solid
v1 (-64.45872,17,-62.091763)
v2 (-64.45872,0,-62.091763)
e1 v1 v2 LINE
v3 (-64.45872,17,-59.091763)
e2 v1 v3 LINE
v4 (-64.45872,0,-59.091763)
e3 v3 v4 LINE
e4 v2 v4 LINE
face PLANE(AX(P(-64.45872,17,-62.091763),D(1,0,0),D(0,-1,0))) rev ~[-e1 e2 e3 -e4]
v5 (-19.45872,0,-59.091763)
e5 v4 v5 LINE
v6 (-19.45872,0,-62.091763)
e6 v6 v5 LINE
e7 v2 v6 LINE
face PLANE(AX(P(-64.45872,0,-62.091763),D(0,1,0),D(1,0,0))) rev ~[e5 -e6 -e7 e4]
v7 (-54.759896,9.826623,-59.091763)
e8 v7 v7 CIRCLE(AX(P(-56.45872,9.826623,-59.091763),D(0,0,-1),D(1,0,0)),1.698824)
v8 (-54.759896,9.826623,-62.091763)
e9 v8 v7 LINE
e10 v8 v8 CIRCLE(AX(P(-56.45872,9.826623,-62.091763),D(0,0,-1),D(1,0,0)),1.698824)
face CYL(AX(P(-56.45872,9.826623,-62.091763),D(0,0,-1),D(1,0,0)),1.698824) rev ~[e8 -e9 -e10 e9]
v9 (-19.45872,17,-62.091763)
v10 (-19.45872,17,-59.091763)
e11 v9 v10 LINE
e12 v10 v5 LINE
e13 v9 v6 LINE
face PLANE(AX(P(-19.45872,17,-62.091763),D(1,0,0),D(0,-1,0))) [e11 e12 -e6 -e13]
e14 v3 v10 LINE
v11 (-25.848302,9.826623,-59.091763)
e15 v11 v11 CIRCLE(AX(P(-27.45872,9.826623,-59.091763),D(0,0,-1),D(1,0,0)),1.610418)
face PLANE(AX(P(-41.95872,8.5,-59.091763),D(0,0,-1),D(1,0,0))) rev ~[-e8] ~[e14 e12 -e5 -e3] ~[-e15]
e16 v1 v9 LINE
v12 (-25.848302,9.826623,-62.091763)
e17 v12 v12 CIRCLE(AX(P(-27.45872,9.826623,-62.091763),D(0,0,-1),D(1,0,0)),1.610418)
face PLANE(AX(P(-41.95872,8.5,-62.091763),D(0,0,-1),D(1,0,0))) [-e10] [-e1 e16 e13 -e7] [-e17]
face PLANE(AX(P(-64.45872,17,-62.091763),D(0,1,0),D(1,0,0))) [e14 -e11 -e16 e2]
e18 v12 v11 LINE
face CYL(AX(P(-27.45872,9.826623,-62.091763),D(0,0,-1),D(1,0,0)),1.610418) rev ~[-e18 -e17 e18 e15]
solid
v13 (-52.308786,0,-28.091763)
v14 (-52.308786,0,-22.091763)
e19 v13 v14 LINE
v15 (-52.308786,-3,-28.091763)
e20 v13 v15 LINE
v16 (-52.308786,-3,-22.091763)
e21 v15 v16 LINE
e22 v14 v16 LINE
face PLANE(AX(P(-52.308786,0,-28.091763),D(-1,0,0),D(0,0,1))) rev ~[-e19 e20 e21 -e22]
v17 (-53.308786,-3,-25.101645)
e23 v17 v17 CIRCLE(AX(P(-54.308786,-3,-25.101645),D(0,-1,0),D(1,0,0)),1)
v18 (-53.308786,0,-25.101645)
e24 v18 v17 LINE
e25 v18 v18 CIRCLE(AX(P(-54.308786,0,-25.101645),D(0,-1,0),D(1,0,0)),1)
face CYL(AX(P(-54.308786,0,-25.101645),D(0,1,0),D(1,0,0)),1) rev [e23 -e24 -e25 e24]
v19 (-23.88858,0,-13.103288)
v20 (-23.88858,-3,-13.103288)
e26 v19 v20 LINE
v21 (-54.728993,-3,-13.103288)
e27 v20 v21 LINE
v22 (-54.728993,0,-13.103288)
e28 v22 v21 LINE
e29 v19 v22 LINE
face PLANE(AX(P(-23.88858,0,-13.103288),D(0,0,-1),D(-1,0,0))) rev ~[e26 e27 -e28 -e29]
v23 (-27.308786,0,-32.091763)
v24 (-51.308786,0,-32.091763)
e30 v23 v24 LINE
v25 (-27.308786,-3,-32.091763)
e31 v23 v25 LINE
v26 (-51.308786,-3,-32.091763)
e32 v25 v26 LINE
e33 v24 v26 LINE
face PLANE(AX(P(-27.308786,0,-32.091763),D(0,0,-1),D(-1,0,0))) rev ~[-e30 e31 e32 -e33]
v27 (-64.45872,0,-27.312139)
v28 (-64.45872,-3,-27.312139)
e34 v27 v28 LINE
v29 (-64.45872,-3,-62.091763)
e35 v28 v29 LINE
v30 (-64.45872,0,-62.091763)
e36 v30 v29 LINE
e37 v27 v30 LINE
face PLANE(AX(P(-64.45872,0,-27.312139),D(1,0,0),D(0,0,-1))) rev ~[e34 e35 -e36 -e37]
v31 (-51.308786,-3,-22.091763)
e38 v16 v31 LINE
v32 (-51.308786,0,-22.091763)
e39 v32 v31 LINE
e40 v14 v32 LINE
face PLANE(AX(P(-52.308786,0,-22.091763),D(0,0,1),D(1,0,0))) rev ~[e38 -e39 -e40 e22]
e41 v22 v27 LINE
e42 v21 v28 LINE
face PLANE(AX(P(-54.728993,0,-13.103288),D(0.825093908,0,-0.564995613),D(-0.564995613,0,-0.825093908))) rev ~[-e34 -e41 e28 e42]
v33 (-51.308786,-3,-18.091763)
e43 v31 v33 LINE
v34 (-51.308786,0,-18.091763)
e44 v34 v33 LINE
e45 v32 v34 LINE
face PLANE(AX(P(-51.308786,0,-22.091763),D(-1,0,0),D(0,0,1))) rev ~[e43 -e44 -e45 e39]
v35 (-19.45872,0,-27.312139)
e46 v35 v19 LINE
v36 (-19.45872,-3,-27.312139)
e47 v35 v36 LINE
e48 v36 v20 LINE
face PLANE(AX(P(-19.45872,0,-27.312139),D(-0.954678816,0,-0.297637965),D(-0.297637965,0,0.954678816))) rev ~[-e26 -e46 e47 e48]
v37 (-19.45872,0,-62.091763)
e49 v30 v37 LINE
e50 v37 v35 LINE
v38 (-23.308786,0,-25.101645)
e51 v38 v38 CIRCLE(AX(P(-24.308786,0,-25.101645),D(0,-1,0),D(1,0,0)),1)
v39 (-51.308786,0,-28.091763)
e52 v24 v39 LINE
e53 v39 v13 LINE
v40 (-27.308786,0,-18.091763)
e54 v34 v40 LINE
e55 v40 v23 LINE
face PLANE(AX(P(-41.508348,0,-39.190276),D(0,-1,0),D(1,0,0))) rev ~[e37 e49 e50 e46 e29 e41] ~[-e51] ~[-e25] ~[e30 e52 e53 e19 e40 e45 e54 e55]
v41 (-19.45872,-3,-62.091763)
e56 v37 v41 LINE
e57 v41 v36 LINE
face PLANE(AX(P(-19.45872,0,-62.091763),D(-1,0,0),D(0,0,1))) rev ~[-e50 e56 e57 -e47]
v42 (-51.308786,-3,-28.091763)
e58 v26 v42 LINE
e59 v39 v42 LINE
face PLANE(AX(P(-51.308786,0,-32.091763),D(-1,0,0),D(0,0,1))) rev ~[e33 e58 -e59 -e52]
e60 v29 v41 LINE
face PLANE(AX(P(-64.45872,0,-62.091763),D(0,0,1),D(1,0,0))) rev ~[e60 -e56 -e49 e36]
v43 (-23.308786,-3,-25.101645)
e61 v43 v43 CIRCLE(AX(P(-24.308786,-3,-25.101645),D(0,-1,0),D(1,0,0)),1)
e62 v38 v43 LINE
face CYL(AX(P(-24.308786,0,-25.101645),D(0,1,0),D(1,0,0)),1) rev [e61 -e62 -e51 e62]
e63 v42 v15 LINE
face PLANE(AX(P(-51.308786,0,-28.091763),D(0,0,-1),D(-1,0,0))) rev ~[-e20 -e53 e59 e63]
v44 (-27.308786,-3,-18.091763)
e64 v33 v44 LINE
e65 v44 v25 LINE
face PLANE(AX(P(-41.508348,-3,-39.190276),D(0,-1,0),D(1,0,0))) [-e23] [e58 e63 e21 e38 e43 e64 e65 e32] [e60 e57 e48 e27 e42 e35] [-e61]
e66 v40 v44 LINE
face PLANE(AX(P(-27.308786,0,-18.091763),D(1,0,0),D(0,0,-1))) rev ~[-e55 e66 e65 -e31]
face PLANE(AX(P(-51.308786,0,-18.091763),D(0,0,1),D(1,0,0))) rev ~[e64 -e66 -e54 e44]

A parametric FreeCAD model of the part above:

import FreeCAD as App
import Part
import Sketcher
from FreeCAD import Vector

doc = App.newDocument("Part")
body = doc.addObject("PartDesign::Body", "Body")

sketch1 = doc.addObject("Sketcher::SketchObject", "Sketch")
body.addObject(sketch1)
sketch1.AttachmentSupport = (doc.XZ_Plane, [""])
sketch1.MapMode = "FlatFace"
sketch1.addGeometry([
    Part.LineSegment(Vector(-64.5, -27.3, 0), Vector(-64.5, -62.1, 0)),
    Part.LineSegment(Vector(-64.5, -62.1, 0), Vector(-19.5, -62.1, 0)),
    Part.LineSegment(Vector(-19.5, -62.1, 0), Vector(-19.5, -27.3, 0)),
    Part.LineSegment(Vector(-19.5, -27.3, 0), Vector(-23.9, -13.1, 0)),
    Part.LineSegment(Vector(-23.9, -13.1, 0), Vector(-54.7, -13.1, 0)),
    Part.LineSegment(Vector(-54.7, -13.1, 0), Vector(-64.5, -27.3, 0)),
    Part.Circle(Vector(-54.3, -25.1, 0), Vector(0, 0, 1), 1),
    Part.Circle(Vector(-24.3, -25.1, 0), Vector(0, 0, 1), 1),
    Part.LineSegment(Vector(-52.3, -22.1, 0), Vector(-51.3, -22.1, 0)),
    Part.LineSegment(Vector(-51.3, -22.1, 0), Vector(-51.3, -18.1, 0)),
    Part.LineSegment(Vector(-51.3, -18.1, 0), Vector(-27.3, -18.1, 0)),
    Part.LineSegment(Vector(-27.3, -18.1, 0), Vector(-27.3, -32.1, 0)),
    Part.LineSegment(Vector(-27.3, -32.1, 0), Vector(-51.3, -32.1, 0)),
    Part.LineSegment(Vector(-51.3, -32.1, 0), Vector(-51.3, -28.1, 0)),
    Part.LineSegment(Vector(-51.3, -28.1, 0), Vector(-52.3, -28.1, 0)),
    Part.LineSegment(Vector(-52.3, -28.1, 0), Vector(-52.3, -22.1, 0)),
], False)
sketch1.addConstraint([
    Sketcher.Constraint("Coincident", 0, 2, 1, 1),
    Sketcher.Constraint("Coincident", 1, 2, 2, 1),
    Sketcher.Constraint("Coincident", 2, 2, 3, 1),
    Sketcher.Constraint("Coincident", 3, 2, 4, 1),
    Sketcher.Constraint("Coincident", 4, 2, 5, 1),
    Sketcher.Constraint("Coincident", 5, 2, 0, 1),
    Sketcher.Constraint("Coincident", 8, 2, 9, 1),
    Sketcher.Constraint("Coincident", 9, 2, 10, 1),
    Sketcher.Constraint("Coincident", 10, 2, 11, 1),
    Sketcher.Constraint("Coincident", 11, 2, 12, 1),
    Sketcher.Constraint("Coincident", 12, 2, 13, 1),
    Sketcher.Constraint("Coincident", 13, 2, 14, 1),
    Sketcher.Constraint("Coincident", 14, 2, 15, 1),
    Sketcher.Constraint("Coincident", 15, 2, 8, 1),
    Sketcher.Constraint("Vertical", 0),
    Sketcher.Constraint("Horizontal", 1),
    Sketcher.Constraint("Vertical", 2),
    Sketcher.Constraint("Horizontal", 4),
    Sketcher.Constraint("Horizontal", 8),
    Sketcher.Constraint("Vertical", 9),
    Sketcher.Constraint("Horizontal", 10),
    Sketcher.Constraint("Vertical", 11),
    Sketcher.Constraint("Horizontal", 12),
    Sketcher.Constraint("Vertical", 13),
    Sketcher.Constraint("Horizontal", 14),
    Sketcher.Constraint("Vertical", 15),
    Sketcher.Constraint("Equal", 6, 7),
    Sketcher.Constraint("Horizontal", 6, 3, 7, 3),
    Sketcher.Constraint("Horizontal", 2, 2, 5, 2),
    Sketcher.Constraint("Vertical", 9, 2, 12, 2),
    Sketcher.Constraint("Equal", 9, 13),
    Sketcher.Constraint("Diameter", 6, 2.0),
    Sketcher.Constraint("DistanceX", 1, 1, 1, 2, 45.0),
    Sketcher.Constraint("DistanceX", 8, 1, 8, 2, 1.0),
    Sketcher.Constraint("DistanceX", 10, 1, 10, 2, 24.0),
    Sketcher.Constraint("DistanceY", 9, 1, 9, 2, 4.0),
    Sketcher.Constraint("DistanceY", 11, 2, 11, 1, 14.0),
    Sketcher.Constraint("DistanceX", 6, 3, 7, 3, 30.0),
    Sketcher.Constraint("DistanceX", 6, 3, 8, 2, 3.0),
    Sketcher.Constraint("Distance", 5, 17.220889),
    Sketcher.Constraint("DistanceX", 4, 2, 4, 1, 30.840413),
    Sketcher.Constraint("DistanceY", 0, 2, 0, 1, 34.779624),
    Sketcher.Constraint("DistanceX", 0, 2, -1, 1, 64.45872),
    Sketcher.Constraint("DistanceY", 2, 2, -1, 1, 27.312139),
    Sketcher.Constraint("DistanceX", 3, 2, -1, 1, 23.88858),
    Sketcher.Constraint("DistanceX", 6, 3, -1, 1, 54.308786),
    Sketcher.Constraint("DistanceY", 6, 3, -1, 1, 25.101645),
    Sketcher.Constraint("DistanceY", 8, 2, -1, 1, 22.091763),
])
pad1 = doc.addObject("PartDesign::Pad", "Pad")
body.addObject(pad1)
pad1.Profile = sketch1
pad1.Length = 3
body2 = doc.addObject("PartDesign::Body", "Body001")

sketch2 = doc.addObject("Sketcher::SketchObject", "Sketch001")
body2.addObject(sketch2)
sketch2.AttachmentSupport = (doc.getObject("XY_Plane001"), [""])
sketch2.MapMode = "FlatFace"
sketch2.AttachmentOffset = App.Placement(Vector(0, 0, -62.091763), App.Rotation())
sketch2.addGeometry([
    Part.LineSegment(Vector(-64.5, 0, 0), Vector(-64.5, 17, 0)),
    Part.LineSegment(Vector(-64.5, 17, 0), Vector(-19.5, 17, 0)),
    Part.LineSegment(Vector(-19.5, 17, 0), Vector(-19.5, 0, 0)),
    Part.LineSegment(Vector(-19.5, 0, 0), Vector(-64.5, 0, 0)),
    Part.Circle(Vector(-56.5, 9.8, 0), Vector(0, 0, 1), 1.7),
    Part.Circle(Vector(-27.5, 9.8, 0), Vector(0, 0, 1), 1.6),
], False)
sketch2.addConstraint([
    Sketcher.Constraint("Coincident", 0, 2, 1, 1),
    Sketcher.Constraint("Coincident", 1, 2, 2, 1),
    Sketcher.Constraint("Coincident", 2, 2, 3, 1),
    Sketcher.Constraint("Coincident", 3, 2, 0, 1),
    Sketcher.Constraint("Vertical", 0),
    Sketcher.Constraint("Horizontal", 1),
    Sketcher.Constraint("Vertical", 2),
    Sketcher.Constraint("Horizontal", 3),
    Sketcher.Constraint("PointOnObject", 2, 2, -1),
    Sketcher.Constraint("Horizontal", 4, 3, 5, 3),
    Sketcher.Constraint("DistanceX", 1, 1, 1, 2, 45.0),
    Sketcher.Constraint("DistanceY", 0, 1, 0, 2, 17.0),
    Sketcher.Constraint("DistanceX", 4, 3, 5, 3, 29.0),
    Sketcher.Constraint("DistanceX", 0, 2, 4, 3, 8.0),
    Sketcher.Constraint("Diameter", 4, 3.397648),
    Sketcher.Constraint("Diameter", 5, 3.220836),
    Sketcher.Constraint("DistanceX", 4, 3, -1, 1, 56.45872),
    Sketcher.Constraint("DistanceY", -1, 1, 4, 3, 9.826623),
])
pad2 = doc.addObject("PartDesign::Pad", "Pad001")
body2.addObject(pad2)
pad2.Profile = sketch2
pad2.Length = 3

doc.recompute()
